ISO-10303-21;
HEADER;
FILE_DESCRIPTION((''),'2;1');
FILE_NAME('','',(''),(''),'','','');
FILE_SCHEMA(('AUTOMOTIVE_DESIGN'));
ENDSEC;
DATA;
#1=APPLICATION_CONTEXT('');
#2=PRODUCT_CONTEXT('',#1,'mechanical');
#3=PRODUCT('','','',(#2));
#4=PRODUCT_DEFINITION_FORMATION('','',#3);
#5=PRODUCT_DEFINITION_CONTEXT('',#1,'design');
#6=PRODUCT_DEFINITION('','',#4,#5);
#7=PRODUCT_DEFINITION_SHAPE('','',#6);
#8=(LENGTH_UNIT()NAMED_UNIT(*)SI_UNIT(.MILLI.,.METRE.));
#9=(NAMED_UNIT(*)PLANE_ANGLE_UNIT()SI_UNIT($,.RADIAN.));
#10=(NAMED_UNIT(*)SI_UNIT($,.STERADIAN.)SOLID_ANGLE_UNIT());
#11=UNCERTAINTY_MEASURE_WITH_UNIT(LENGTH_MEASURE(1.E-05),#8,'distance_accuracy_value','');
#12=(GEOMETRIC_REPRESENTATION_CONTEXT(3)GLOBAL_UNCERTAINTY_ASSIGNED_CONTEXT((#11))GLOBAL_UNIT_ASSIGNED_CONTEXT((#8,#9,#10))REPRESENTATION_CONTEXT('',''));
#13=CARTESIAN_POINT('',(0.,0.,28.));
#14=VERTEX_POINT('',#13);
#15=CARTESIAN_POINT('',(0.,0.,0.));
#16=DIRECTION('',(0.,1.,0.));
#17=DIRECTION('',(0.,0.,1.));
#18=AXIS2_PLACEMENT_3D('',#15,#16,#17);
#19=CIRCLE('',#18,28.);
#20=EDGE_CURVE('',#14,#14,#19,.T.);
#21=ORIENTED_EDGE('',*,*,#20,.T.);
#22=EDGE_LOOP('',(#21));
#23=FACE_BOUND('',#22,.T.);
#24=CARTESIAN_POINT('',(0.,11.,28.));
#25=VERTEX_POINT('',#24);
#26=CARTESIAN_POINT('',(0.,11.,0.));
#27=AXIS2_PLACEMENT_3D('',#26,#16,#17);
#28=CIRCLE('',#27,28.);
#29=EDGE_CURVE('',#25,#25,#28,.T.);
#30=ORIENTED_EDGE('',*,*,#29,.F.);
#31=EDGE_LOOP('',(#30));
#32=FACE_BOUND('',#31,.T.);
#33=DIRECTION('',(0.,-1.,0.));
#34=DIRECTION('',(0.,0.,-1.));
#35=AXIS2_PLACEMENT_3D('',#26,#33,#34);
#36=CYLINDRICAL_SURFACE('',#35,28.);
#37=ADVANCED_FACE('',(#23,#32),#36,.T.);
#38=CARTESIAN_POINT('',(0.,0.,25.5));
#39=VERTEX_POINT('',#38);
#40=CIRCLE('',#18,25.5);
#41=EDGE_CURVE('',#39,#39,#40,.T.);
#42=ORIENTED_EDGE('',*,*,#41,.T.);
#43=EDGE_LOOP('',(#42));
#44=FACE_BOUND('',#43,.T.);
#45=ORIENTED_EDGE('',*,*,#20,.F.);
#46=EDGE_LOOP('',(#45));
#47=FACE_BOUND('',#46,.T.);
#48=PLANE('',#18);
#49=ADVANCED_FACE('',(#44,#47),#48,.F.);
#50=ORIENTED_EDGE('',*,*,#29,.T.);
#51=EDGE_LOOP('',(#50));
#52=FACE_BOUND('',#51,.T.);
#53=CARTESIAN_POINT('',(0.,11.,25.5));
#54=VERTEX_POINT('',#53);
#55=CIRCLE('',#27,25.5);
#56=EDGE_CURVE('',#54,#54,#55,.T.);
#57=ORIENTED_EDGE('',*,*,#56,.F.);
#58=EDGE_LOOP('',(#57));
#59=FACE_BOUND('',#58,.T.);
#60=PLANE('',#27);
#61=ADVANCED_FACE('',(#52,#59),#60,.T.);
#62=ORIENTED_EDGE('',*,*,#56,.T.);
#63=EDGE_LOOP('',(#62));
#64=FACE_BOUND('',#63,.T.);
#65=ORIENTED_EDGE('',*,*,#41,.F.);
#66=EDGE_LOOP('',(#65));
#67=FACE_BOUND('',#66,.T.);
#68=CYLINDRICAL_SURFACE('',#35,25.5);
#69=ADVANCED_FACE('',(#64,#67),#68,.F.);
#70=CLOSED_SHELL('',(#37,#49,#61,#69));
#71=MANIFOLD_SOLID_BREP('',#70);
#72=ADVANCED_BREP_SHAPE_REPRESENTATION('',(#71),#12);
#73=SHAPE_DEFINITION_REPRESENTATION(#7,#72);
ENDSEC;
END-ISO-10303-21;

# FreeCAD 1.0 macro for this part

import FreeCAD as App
import Part
import Sketcher
from FreeCAD import Vector
Q = App.Units.Quantity

doc = App.newDocument("Part")
body = doc.addObject("PartDesign::Body", "Body")

sketch1 = doc.addObject("Sketcher::SketchObject", "Sketch")
body.addObject(sketch1)
sketch1.AttachmentSupport = (doc.XZ_Plane, [""])
sketch1.MapMode = "FlatFace"
sketch1.addGeometry([
    Part.Circle(Vector(0, 0, 0), Vector(0, 0, 1), 28),
    Part.Circle(Vector(0, 0, 0), Vector(0, 0, 1), 26),
], False)
sketch1.addConstraint([
    Sketcher.Constraint("Coincident", 0, 3, -1, 1),
    Sketcher.Constraint("Coincident", 1, 3, -1, 1),
    Sketcher.Constraint("Diameter", 0, Q("56 mm")),
    Sketcher.Constraint("Diameter", 1, Q("51 mm")),
])
pad1 = doc.addObject("PartDesign::Pad", "Pad")
body.addObject(pad1)
pad1.Profile = sketch1
pad1.Length = 11
pad1.Reversed = True

doc.recompute()
